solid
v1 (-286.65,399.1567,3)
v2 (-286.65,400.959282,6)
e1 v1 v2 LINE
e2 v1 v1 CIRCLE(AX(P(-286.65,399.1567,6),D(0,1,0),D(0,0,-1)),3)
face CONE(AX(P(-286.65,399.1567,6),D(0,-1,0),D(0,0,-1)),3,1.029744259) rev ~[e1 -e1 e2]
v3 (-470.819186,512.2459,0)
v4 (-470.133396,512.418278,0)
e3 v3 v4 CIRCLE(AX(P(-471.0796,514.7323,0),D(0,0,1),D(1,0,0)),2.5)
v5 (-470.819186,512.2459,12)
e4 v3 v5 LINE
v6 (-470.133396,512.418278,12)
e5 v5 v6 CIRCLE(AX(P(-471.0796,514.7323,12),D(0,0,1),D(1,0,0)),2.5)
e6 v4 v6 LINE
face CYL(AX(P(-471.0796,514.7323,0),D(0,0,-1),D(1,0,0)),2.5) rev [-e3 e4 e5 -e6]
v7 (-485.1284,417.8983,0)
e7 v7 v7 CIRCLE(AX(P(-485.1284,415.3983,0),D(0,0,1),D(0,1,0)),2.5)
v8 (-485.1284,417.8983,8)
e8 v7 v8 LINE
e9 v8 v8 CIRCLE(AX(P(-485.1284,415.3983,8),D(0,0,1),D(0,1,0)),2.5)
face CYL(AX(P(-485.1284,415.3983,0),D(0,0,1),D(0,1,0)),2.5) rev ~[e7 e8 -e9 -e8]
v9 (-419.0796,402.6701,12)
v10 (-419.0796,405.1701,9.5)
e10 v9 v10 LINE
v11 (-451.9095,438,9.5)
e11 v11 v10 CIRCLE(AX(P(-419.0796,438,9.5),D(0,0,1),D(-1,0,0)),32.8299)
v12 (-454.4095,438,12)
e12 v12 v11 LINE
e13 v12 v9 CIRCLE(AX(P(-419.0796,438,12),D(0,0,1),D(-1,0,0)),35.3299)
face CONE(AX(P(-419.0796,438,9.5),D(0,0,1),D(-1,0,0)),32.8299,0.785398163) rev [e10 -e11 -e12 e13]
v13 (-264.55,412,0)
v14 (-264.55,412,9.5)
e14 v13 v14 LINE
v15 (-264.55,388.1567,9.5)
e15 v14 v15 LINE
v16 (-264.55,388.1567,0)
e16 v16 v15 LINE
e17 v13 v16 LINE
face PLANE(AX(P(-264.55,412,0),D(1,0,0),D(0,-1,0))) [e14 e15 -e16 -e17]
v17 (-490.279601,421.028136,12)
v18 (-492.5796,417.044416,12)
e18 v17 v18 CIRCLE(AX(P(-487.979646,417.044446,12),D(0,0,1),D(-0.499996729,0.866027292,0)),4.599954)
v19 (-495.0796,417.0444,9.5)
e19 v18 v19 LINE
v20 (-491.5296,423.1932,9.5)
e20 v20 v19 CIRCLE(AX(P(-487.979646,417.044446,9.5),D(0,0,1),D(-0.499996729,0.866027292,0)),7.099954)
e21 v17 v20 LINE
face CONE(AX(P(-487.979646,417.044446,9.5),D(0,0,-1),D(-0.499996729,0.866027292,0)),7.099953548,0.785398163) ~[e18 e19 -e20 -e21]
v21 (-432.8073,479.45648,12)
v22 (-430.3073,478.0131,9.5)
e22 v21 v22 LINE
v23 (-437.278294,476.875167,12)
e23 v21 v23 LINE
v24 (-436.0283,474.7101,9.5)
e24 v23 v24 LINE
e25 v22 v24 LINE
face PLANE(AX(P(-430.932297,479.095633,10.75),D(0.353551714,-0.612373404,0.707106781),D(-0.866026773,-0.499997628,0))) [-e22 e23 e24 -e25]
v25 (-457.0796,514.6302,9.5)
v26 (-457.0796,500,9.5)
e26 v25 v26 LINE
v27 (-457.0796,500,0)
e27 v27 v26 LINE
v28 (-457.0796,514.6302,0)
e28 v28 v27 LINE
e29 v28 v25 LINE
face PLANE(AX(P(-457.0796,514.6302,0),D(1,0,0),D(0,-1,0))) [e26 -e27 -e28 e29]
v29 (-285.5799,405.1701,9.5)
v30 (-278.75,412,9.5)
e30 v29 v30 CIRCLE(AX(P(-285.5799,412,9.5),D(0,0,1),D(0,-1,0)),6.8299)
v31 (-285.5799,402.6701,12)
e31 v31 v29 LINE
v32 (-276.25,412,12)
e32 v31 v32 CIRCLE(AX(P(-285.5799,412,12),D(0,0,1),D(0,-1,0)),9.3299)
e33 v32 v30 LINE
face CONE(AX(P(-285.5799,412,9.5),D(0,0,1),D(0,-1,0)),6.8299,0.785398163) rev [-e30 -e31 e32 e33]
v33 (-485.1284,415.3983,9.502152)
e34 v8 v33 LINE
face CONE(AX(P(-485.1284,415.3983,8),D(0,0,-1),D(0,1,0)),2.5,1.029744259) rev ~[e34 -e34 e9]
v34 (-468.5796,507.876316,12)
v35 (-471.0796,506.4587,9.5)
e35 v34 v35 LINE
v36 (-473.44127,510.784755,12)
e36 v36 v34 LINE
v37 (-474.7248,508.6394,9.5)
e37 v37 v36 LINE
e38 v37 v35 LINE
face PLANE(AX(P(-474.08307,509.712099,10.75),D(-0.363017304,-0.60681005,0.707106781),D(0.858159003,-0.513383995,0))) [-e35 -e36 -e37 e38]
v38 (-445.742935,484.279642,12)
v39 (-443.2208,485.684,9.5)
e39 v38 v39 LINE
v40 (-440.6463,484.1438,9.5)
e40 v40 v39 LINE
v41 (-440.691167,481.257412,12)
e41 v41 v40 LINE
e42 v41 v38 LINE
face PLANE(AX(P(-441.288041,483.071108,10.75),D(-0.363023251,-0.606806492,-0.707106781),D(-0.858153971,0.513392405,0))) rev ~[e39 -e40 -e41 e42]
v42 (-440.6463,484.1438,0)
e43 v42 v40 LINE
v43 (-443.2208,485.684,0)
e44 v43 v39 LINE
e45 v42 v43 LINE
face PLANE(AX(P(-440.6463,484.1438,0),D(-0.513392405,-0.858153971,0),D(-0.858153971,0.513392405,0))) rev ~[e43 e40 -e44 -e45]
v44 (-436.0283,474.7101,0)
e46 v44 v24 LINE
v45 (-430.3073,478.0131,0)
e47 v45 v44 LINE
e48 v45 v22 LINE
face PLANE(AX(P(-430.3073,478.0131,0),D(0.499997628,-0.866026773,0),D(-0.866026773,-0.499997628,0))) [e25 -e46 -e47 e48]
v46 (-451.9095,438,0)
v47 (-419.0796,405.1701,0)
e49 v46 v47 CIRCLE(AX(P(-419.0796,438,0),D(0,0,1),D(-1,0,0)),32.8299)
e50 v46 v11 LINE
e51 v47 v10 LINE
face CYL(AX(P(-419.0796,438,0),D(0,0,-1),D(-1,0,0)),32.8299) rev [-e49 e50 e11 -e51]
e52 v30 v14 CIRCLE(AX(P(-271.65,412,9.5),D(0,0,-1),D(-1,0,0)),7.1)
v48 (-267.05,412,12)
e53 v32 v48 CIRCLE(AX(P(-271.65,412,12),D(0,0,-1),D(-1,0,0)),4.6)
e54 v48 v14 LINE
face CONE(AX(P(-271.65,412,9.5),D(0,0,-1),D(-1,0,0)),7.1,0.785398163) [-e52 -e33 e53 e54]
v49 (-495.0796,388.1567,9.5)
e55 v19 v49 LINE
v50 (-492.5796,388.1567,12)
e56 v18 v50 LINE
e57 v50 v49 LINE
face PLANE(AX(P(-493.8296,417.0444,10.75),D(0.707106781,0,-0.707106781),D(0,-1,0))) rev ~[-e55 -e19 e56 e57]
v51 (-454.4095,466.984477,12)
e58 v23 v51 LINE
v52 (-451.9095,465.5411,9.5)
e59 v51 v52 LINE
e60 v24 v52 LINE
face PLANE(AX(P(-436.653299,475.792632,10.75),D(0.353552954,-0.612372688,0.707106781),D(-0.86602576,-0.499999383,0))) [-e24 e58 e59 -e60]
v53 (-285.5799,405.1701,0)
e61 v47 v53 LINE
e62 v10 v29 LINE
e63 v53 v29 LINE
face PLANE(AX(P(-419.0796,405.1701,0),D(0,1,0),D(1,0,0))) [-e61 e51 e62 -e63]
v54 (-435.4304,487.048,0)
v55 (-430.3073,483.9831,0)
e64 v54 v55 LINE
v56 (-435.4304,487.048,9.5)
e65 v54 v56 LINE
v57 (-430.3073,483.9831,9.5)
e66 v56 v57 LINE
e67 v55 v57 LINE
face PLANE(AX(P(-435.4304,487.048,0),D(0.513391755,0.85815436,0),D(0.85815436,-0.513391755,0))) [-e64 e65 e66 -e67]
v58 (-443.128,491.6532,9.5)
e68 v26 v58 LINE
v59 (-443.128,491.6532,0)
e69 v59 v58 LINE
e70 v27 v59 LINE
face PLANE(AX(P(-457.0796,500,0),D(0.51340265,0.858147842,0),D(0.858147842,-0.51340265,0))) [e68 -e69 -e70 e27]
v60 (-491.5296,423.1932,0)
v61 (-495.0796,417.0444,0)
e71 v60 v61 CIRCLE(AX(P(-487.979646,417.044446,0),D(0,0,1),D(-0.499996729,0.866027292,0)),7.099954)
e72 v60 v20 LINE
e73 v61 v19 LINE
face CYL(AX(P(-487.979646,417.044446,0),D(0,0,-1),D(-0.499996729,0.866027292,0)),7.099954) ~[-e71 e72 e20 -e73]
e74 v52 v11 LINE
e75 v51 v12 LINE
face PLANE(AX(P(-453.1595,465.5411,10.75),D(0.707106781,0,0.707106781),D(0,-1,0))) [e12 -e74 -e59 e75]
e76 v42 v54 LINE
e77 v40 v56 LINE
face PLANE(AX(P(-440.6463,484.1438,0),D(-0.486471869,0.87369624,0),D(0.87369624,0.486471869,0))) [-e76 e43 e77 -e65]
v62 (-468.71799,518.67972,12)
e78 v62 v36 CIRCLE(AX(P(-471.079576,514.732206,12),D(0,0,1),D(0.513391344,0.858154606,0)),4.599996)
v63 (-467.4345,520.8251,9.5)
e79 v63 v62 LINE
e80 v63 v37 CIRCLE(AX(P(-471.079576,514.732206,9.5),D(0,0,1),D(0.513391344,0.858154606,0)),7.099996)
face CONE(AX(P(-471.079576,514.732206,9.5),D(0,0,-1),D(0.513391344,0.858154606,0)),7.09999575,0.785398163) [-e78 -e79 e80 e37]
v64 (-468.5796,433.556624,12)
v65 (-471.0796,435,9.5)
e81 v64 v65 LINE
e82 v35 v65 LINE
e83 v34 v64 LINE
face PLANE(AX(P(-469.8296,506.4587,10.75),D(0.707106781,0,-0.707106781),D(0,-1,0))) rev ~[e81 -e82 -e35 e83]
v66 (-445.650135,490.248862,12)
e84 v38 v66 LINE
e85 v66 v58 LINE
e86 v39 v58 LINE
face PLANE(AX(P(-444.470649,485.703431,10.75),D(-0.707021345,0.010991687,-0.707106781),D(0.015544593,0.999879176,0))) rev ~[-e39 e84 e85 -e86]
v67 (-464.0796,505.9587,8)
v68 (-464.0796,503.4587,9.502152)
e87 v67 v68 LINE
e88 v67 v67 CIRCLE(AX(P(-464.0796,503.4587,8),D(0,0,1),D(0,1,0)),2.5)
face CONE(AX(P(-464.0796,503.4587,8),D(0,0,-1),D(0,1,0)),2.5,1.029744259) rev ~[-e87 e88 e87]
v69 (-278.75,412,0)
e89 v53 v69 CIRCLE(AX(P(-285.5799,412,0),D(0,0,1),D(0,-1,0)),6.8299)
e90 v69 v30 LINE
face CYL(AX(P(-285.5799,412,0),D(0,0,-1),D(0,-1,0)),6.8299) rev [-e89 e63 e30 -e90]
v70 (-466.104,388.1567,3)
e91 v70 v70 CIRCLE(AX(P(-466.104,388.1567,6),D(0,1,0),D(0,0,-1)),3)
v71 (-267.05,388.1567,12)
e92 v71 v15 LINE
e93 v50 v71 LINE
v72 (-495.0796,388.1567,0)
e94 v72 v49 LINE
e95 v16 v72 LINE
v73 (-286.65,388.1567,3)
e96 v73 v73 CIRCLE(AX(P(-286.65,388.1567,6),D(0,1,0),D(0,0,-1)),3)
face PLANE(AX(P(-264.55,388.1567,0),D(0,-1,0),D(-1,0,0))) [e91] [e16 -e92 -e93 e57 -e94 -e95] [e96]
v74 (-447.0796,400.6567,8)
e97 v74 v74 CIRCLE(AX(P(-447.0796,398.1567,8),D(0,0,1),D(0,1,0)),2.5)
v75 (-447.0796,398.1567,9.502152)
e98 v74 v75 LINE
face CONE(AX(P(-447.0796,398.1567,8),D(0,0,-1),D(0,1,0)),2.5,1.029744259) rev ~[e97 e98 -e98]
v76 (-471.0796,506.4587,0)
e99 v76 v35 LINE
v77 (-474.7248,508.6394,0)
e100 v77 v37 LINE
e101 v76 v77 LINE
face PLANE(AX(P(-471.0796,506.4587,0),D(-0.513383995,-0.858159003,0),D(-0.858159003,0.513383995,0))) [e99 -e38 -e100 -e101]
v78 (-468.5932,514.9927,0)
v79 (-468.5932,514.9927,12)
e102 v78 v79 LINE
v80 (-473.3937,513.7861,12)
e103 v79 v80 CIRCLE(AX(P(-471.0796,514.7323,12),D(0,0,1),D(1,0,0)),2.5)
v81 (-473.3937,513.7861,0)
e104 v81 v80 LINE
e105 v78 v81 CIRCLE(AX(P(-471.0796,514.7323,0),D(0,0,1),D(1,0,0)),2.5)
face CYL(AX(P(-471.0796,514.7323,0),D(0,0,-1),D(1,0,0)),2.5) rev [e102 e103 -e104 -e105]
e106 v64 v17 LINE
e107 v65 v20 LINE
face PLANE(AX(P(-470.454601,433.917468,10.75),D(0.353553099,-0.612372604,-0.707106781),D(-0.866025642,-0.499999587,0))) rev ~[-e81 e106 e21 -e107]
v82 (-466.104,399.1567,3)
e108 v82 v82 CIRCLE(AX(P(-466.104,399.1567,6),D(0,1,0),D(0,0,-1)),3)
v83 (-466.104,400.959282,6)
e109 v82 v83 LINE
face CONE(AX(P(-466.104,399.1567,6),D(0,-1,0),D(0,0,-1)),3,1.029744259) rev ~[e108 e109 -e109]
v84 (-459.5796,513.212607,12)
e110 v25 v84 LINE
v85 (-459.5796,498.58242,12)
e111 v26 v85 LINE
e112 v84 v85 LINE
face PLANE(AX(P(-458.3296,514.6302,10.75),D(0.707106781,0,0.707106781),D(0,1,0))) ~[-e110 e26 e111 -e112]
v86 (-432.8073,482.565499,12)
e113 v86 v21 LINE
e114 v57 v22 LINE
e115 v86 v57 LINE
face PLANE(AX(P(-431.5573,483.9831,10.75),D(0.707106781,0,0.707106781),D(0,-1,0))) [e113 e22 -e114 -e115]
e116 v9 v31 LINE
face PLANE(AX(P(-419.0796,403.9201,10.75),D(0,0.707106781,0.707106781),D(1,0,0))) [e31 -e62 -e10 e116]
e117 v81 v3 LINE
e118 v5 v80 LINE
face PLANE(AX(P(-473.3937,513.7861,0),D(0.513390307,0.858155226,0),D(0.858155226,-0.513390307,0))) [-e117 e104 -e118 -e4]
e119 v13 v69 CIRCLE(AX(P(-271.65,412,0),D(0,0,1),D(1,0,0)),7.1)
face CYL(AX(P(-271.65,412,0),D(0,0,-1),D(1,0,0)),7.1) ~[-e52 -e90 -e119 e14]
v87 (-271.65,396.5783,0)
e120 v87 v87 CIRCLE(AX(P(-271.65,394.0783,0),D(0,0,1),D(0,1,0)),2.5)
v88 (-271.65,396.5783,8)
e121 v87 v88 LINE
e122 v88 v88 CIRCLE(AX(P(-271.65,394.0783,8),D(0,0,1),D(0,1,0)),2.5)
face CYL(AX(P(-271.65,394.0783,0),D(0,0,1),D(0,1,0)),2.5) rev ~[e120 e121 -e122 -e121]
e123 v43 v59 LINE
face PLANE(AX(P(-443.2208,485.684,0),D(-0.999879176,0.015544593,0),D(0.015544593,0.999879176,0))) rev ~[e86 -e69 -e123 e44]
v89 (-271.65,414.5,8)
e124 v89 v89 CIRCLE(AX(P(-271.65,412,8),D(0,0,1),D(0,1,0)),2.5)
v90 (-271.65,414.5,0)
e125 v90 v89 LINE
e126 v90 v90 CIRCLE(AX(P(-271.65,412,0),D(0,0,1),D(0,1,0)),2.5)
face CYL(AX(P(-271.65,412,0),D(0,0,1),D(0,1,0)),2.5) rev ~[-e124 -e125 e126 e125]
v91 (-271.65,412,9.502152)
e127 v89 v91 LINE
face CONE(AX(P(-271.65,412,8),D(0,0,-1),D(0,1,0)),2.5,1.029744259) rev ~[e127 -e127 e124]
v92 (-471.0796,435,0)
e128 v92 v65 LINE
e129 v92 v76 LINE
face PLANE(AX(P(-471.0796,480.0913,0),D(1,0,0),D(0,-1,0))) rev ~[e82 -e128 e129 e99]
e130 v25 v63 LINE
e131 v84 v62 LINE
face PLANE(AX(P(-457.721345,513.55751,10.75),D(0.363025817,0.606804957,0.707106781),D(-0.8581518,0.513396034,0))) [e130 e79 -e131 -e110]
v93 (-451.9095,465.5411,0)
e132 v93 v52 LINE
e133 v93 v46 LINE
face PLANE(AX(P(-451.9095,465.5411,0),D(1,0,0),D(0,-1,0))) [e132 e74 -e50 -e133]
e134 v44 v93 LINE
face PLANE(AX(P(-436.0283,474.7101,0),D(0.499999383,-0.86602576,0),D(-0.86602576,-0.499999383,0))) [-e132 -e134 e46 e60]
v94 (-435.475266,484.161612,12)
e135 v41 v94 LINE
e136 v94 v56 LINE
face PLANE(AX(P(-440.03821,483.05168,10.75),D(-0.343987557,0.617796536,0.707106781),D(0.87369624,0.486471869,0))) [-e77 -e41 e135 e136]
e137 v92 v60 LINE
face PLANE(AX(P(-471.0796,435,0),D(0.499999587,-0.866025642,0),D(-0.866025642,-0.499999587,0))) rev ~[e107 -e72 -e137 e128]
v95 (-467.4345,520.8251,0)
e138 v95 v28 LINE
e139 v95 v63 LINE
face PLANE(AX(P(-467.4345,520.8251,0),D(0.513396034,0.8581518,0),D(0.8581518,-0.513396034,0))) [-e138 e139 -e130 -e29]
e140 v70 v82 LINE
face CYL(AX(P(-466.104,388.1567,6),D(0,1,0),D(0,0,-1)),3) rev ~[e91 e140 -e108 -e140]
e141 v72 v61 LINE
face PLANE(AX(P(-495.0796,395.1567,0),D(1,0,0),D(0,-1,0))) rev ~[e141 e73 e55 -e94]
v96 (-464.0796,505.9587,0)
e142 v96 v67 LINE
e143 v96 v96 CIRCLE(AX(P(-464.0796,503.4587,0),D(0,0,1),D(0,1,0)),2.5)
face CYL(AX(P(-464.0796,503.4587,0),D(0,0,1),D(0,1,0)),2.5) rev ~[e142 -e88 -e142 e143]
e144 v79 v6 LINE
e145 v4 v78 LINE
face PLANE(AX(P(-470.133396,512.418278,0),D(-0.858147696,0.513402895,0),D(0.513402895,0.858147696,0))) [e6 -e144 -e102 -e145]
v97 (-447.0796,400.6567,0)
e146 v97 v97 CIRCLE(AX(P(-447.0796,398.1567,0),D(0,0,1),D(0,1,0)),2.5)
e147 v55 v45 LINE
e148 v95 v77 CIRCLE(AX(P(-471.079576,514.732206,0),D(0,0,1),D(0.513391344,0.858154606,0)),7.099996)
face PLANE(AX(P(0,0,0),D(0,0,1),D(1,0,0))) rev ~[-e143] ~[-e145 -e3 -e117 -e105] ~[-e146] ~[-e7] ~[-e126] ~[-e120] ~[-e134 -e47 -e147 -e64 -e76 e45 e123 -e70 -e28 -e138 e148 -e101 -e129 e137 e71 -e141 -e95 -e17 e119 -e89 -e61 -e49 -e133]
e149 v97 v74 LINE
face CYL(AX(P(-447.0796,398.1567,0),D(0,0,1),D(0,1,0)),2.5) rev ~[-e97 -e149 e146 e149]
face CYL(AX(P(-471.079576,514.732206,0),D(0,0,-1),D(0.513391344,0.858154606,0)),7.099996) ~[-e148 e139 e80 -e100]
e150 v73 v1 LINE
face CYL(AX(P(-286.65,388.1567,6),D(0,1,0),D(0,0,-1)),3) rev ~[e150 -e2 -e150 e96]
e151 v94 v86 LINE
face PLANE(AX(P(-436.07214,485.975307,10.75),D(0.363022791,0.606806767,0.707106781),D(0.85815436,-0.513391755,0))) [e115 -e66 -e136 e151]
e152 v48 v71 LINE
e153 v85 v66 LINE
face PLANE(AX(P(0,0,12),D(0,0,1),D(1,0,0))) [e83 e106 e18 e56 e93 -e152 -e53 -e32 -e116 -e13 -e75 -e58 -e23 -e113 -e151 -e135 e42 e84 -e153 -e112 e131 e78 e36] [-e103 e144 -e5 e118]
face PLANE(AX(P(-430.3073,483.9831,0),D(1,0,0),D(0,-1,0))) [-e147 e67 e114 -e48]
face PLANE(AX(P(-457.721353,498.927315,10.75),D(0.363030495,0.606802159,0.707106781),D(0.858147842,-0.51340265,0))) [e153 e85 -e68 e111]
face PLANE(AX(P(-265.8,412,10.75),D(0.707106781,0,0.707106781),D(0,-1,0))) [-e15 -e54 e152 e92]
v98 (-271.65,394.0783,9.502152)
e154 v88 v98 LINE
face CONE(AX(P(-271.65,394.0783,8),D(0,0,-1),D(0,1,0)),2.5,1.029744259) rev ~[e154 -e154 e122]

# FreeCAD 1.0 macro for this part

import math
import FreeCAD as App
import Part
import Sketcher

V = App.Vector
Q = App.Units.Quantity


def edges_at(feature, points):
    """Names of the edges that pass closest to the given points."""
    edges = feature.Shape.Edges
    near = lambda p: min(range(len(edges)), key=lambda i: edges[i].distToShape(Part.Vertex(*p))[0])
    return sorted({f"Edge{near(p) + 1}" for p in points})

doc = App.newDocument("Part")
params = doc.addObject("Spreadsheet::Sheet", "Params")
for row, (alias, value) in enumerate([
    ("sketch1_radius", "7.1 mm"),
    ("sketch1_radius2", "2.5 mm"),
    ("sketch1_length", "3 mm"),
    ("sketch1_radius3", "6.83 mm"),
    ("sketch1_radius4", "32.83 mm"),
    ("pad1_length", "12 mm"),
    ("chamfer_size", "2.5 mm"),
    ("sketch2_diameter", "5 mm"),
    ("hole_diameter", "5 mm"),
    ("hole_depth", "8 mm"),
    ("sketch3_diameter", "6 mm"),
    ("hole2_diameter", "6 mm"),
    ("hole2_depth", "11 mm"),
], start=1):
    params.set(f"A{row}", alias)
    params.set(f"B{row}", "=" + value)
    params.setAlias(f"B{row}", alias)

body = doc.addObject("PartDesign::Body", "Body")

# Sketch on XY plane
sketch1 = doc.addObject("Sketcher::SketchObject", "Sketch")
body.addObject(sketch1)
sketch1.AttachmentSupport = (doc.XY_Plane, [""])
sketch1.MapMode = "FlatFace"
sketch1.addGeometry(Part.LineSegment(V(-457.1, 514.6, 0), V(-467.4, 520.8, 0)), False)
sketch1.addGeometry(Part.ArcOfCircle(Part.Circle(V(-471.1, 514.7, 0), V(0, 0, 1), 7.1), math.radians(59), math.radians(239)), False)
sketch1.addGeometry(Part.LineSegment(V(-474.7, 508.6, 0), V(-471.1, 506.5, 0)), False)
sketch1.addGeometry(Part.LineSegment(V(-471.1, 506.5, 0), V(-471.1, 435, 0)), False)
sketch1.addGeometry(Part.LineSegment(V(-471.1, 435, 0), V(-491.5, 423.2, 0)), False)
sketch1.addGeometry(Part.ArcOfCircle(Part.Circle(V(-488, 417, 0), V(0, 0, 1), 7.1), math.radians(120), math.radians(180)), False)
sketch1.addGeometry(Part.LineSegment(V(-495.1, 417, 0), V(-495.1, 388.2, 0)), False)
sketch1.addGeometry(Part.LineSegment(V(-495.1, 388.2, 0), V(-264.6, 388.2, 0)), False)
sketch1.addGeometry(Part.LineSegment(V(-264.6, 388.2, 0), V(-264.6, 412, 0)), False)
sketch1.addGeometry(Part.ArcOfCircle(Part.Circle(V(-271.6, 412, 0), V(0, 0, 1), 7.1), math.radians(0), math.radians(180)), False)
sketch1.addGeometry(Part.ArcOfCircle(Part.Circle(V(-285.6, 412, 0), V(0, 0, 1), 6.8), math.radians(-90), math.radians(0)), False)
sketch1.addGeometry(Part.LineSegment(V(-285.6, 405.2, 0), V(-419.1, 405.2, 0)), False)
sketch1.addGeometry(Part.ArcOfCircle(Part.Circle(V(-419.1, 438, 0), V(0, 0, 1), 32.8), math.radians(180), math.radians(270)), False)
sketch1.addGeometry(Part.LineSegment(V(-451.9, 438, 0), V(-451.9, 465.5, 0)), False)
sketch1.addGeometry(Part.LineSegment(V(-451.9, 465.5, 0), V(-436, 474.7, 0)), False)
sketch1.addGeometry(Part.LineSegment(V(-436, 474.7, 0), V(-430.3, 478, 0)), False)
sketch1.addGeometry(Part.LineSegment(V(-430.3, 478, 0), V(-430.3, 484, 0)), False)
sketch1.addGeometry(Part.LineSegment(V(-430.3, 484, 0), V(-435.4, 487, 0)), False)
sketch1.addGeometry(Part.LineSegment(V(-435.4, 487, 0), V(-440.6, 484.1, 0)), False)
sketch1.addGeometry(Part.LineSegment(V(-440.6, 484.1, 0), V(-443.2, 485.7, 0)), False)
sketch1.addGeometry(Part.LineSegment(V(-443.2, 485.7, 0), V(-443.1, 491.7, 0)), False)
sketch1.addGeometry(Part.LineSegment(V(-443.1, 491.7, 0), V(-457.1, 500, 0)), False)
sketch1.addGeometry(Part.LineSegment(V(-457.1, 500, 0), V(-457.1, 514.6, 0)), False)
sketch1.addGeometry(Part.ArcOfCircle(Part.Circle(V(-471.1, 514.7, 0), V(0, 0, 1), 2.5), math.radians(6), math.radians(202)), False)
sketch1.addGeometry(Part.LineSegment(V(-468.6, 515, 0), V(-470.1, 512.4, 0)), False)
sketch1.addGeometry(Part.ArcOfCircle(Part.Circle(V(-471.1, 514.7, 0), V(0, 0, 1), 2.5), math.radians(-84.02), math.radians(-67.76)), False)
sketch1.addGeometry(Part.LineSegment(V(-470.8, 512.2, 0), V(-473.4, 513.8, 0)), False)
sketch1.addConstraint(Sketcher.Constraint("Tangent", 0, 2, 1, 1))
sketch1.addConstraint(Sketcher.Constraint("Tangent", 1, 2, 2, 1))
sketch1.addConstraint(Sketcher.Constraint("Coincident", 2, 2, 3, 1))
sketch1.addConstraint(Sketcher.Constraint("Coincident", 3, 2, 4, 1))
sketch1.addConstraint(Sketcher.Constraint("Tangent", 4, 2, 5, 1))
sketch1.addConstraint(Sketcher.Constraint("Tangent", 5, 2, 6, 1))
sketch1.addConstraint(Sketcher.Constraint("Coincident", 6, 2, 7, 1))
sketch1.addConstraint(Sketcher.Constraint("Coincident", 7, 2, 8, 1))
sketch1.addConstraint(Sketcher.Constraint("Tangent", 8, 2, 9, 1))
sketch1.addConstraint(Sketcher.Constraint("Tangent", 9, 2, 10, 2))
sketch1.addConstraint(Sketcher.Constraint("Tangent", 10, 1, 11, 1))
sketch1.addConstraint(Sketcher.Constraint("Tangent", 11, 2, 12, 2))
sketch1.addConstraint(Sketcher.Constraint("Tangent", 12, 1, 13, 1))
sketch1.addConstraint(Sketcher.Constraint("Coincident", 13, 2, 14, 1))
sketch1.addConstraint(Sketcher.Constraint("Coincident", 14, 2, 15, 1))
sketch1.addConstraint(Sketcher.Constraint("Coincident", 15, 2, 16, 1))
sketch1.addConstraint(Sketcher.Constraint("Coincident", 16, 2, 17, 1))
sketch1.addConstraint(Sketcher.Constraint("Coincident", 17, 2, 18, 1))
sketch1.addConstraint(Sketcher.Constraint("Coincident", 18, 2, 19, 1))
sketch1.addConstraint(Sketcher.Constraint("Coincident", 19, 2, 20, 1))
sketch1.addConstraint(Sketcher.Constraint("Coincident", 20, 2, 21, 1))
sketch1.addConstraint(Sketcher.Constraint("Coincident", 21, 2, 22, 1))
sketch1.addConstraint(Sketcher.Constraint("Coincident", 22, 2, 0, 1))
sketch1.addConstraint(Sketcher.Constraint("Coincident", 23, 1, 24, 1))
sketch1.addConstraint(Sketcher.Constraint("Coincident", 24, 2, 25, 2))
sketch1.addConstraint(Sketcher.Constraint("Coincident", 25, 1, 26, 1))
sketch1.addConstraint(Sketcher.Constraint("Coincident", 26, 2, 23, 2))
sketch1.addConstraint(Sketcher.Constraint("Vertical", 3))
sketch1.addConstraint(Sketcher.Constraint("Vertical", 6))
sketch1.addConstraint(Sketcher.Constraint("Horizontal", 7))
sketch1.addConstraint(Sketcher.Constraint("Vertical", 8))
sketch1.addConstraint(Sketcher.Constraint("Horizontal", 11))
sketch1.addConstraint(Sketcher.Constraint("Vertical", 13))
sketch1.addConstraint(Sketcher.Constraint("Vertical", 16))
sketch1.addConstraint(Sketcher.Constraint("Vertical", 22))
sketch1.addConstraint(Sketcher.Constraint("Coincident", 23, 3, 1, 3))
sketch1.addConstraint(Sketcher.Constraint("Coincident", 25, 3, 1, 3))
sketch1.addConstraint(Sketcher.Constraint("Equal", 1, 5))
sketch1.addConstraint(Sketcher.Constraint("Equal", 5, 9))
sketch1.addConstraint(Sketcher.Constraint("Equal", 23, 25))
sketch1.addConstraint(Sketcher.Constraint("Parallel", 0, 2))
sketch1.addConstraint(Sketcher.Constraint("Parallel", 4, 14))
sketch1.addConstraint(Sketcher.Constraint("Parallel", 14, 15))
sketch1.addConstraint(Sketcher.Constraint("Parallel", 2, 17))
sketch1.addConstraint(Sketcher.Constraint("Parallel", 17, 19))
sketch1.addConstraint(Sketcher.Constraint("Parallel", 19, 21))
sketch1.addConstraint(Sketcher.Constraint("Perpendicular", 21, 24))
sketch1.addConstraint(Sketcher.Constraint("Perpendicular", 24, 26))
sketch1.addConstraint(Sketcher.Constraint("Horizontal", 9, 3, 10, 3))
sketch1.addConstraint(Sketcher.Constraint("Vertical", 25, 3, 2, 2))
sketch1.addConstraint(Sketcher.Constraint("Equal", 17, 18))
sketch1.addConstraint(Sketcher.Constraint("Equal", 18, 20))
sketch1.addConstraint(Sketcher.Constraint("Equal", 19, 24))
sketch1.addConstraint(Sketcher.Constraint("Equal", 24, 26))
sketch1.addConstraint(Sketcher.Constraint("Radius", 1, 7.1))
sketch1.addConstraint(Sketcher.Constraint("Radius", 23, 2.5))
sketch1.addConstraint(Sketcher.Constraint("Angle", 14, Q("30 deg")))
sketch1.addConstraint(Sketcher.Constraint("Distance", 19, 3.0))
sketch1.addConstraint(Sketcher.Constraint("DistanceY", 3, 2, 12, 3, 3.0))
sketch1.addConstraint(Sketcher.Constraint("DistanceX", 5, 2, 3, 2, 24.0))
sketch1.addConstraint(Sketcher.Constraint("DistanceX", 2, 2, 21, 2, 14.0))
sketch1.addConstraint(Sketcher.Constraint("Angle", 24, Q("-120.8908 deg")))
sketch1.addConstraint(Sketcher.Constraint("Radius", 10, 6.83))
sketch1.addConstraint(Sketcher.Constraint("Radius", 12, 32.83))
sketch1.addConstraint(Sketcher.Constraint("DistanceY", -1, 1, 9, 3, 412.0))
sketch1.addConstraint(Sketcher.Constraint("DistanceY", -1, 1, 21, 2, 500.0))
sketch1.addConstraint(Sketcher.Constraint("DistanceX", 1, 3, 12, 3, 52.0))
sketch1.addConstraint(Sketcher.Constraint("DistanceY", 16, 1, 16, 2, 5.97))
sketch1.addConstraint(Sketcher.Constraint("Angle", 18, Q("-150.891 deg")))
sketch1.addConstraint(Sketcher.Constraint("Angle", 20, Q("89.1093 deg")))
sketch1.addConstraint(Sketcher.Constraint("DistanceX", 20, 2, 14, 2, 7.0997))
sketch1.addConstraint(Sketcher.Constraint("Distance", 17, 5.97))
sketch1.addConstraint(Sketcher.Constraint("DistanceY", 13, 1, 13, 2, 27.541))
sketch1.addConstraint(Sketcher.Constraint("DistanceX", 9, 3, -1, 1, 271.65))
sketch1.addConstraint(Sketcher.Constraint("DistanceX", 7, 1, 7, 2, 230.5296))
sketch1.addConstraint(Sketcher.Constraint("DistanceY", 3, 2, 3, 1, 71.4587))
sketch1.addConstraint(Sketcher.Constraint("DistanceY", 6, 2, 6, 1, 28.8877))
sketch1.setExpression("Constraints[54]", "Params.sketch1_radius")
sketch1.setExpression("Constraints[55]", "Params.sketch1_radius2")
sketch1.setExpression("Constraints[57]", "Params.sketch1_length")
sketch1.setExpression("Constraints[62]", "Params.sketch1_radius3")
sketch1.setExpression("Constraints[63]", "Params.sketch1_radius4")
pad1 = doc.addObject("PartDesign::Pad", "Pad")
body.addObject(pad1)
pad1.Profile = sketch1
pad1.setExpression("Length", "Params.pad1_length")
doc.recompute()

chamfer = doc.addObject("PartDesign::Chamfer", "Chamfer")
body.addObject(chamfer)
chamfer.Base = (pad1, edges_at(pad1, [
    (-481.305, 429.097, 12),
    (-494.128, 420.594, 12),
    (-495.08, 402.601, 12),
    (-471.08, 470.729, 12),
    (-477.173, 518.377, 12),
    (-472.902, 507.549, 12),
    (-462.257, 517.728, 12),
    (-457.08, 507.315, 12),
    (-450.104, 495.827, 12),
    (-443.174, 488.669, 12),
    (-441.933, 484.914, 12),
    (-438.038, 485.596, 12),
    (-432.869, 485.515, 12),
    (-430.307, 480.998, 12),
    (-441.108, 471.777, 12),
    (-451.909, 451.771, 12),
    (-442.294, 414.786, 12),
    (-352.33, 405.17, 12),
    (-280.75, 407.171, 12),
    (-271.65, 419.1, 12),
    (-264.55, 400.078, 12),
]))
chamfer.setExpression("Size", "Params.chamfer_size")

# Sketch on XY plane
sketch2 = doc.addObject("Sketcher::SketchObject", "Sketch001")
body.addObject(sketch2)
sketch2.AttachmentSupport = (doc.XY_Plane, [""])
sketch2.MapMode = "FlatFace"
sketch2.addGeometry(Part.Circle(V(-464.1, 503.5, 0), V(0, 0, 1), 2.5), False)
sketch2.addGeometry(Part.Circle(V(-485.1, 415.4, 0), V(0, 0, 1), 2.5), False)
sketch2.addGeometry(Part.Circle(V(-447.1, 398.2, 0), V(0, 0, 1), 2.5), False)
sketch2.addGeometry(Part.Circle(V(-271.6, 394.1, 0), V(0, 0, 1), 2.5), False)
sketch2.addGeometry(Part.Circle(V(-271.6, 412, 0), V(0, 0, 1), 2.5), False)
sketch2.addConstraint(Sketcher.Constraint("Equal", 0, 1))
sketch2.addConstraint(Sketcher.Constraint("Equal", 1, 2))
sketch2.addConstraint(Sketcher.Constraint("Equal", 2, 3))
sketch2.addConstraint(Sketcher.Constraint("Equal", 3, 4))
sketch2.addConstraint(Sketcher.Constraint("Vertical", 3, 3, 4, 3))
sketch2.addConstraint(Sketcher.Constraint("Diameter", 0, 5.0))
sketch2.addConstraint(Sketcher.Constraint("DistanceY", -1, 1, 4, 3, 412.0))
sketch2.addConstraint(Sketcher.Constraint("DistanceX", 0, 3, 2, 3, 17.0))
sketch2.addConstraint(Sketcher.Constraint("DistanceX", 3, 3, -1, 1, 271.65))
sketch2.addConstraint(Sketcher.Constraint("DistanceY", 3, 3, 1, 3, 21.32))
sketch2.addConstraint(Sketcher.Constraint("DistanceY", 2, 3, 0, 3, 105.302))
sketch2.addConstraint(Sketcher.Constraint("DistanceX", 0, 3, -1, 1, 464.0796))
sketch2.addConstraint(Sketcher.Constraint("DistanceY", -1, 1, 0, 3, 503.4587))
sketch2.addConstraint(Sketcher.Constraint("DistanceX", 1, 3, -1, 1, 485.1284))
sketch2.addConstraint(Sketcher.Constraint("DistanceY", -1, 1, 1, 3, 415.3983))
sketch2.setExpression("Constraints[5]", "Params.sketch2_diameter")
doc.recompute()
hole = doc.addObject("PartDesign::Hole", "Hole")
body.addObject(hole)
hole.Profile = sketch2
hole.ThreadType = "None"
hole.setExpression("Diameter", "Params.hole_diameter")
hole.DepthType = "Dimension"
hole.setExpression("Depth", "Params.hole_depth")
hole.DrillPoint = "Angled"
hole.DrillPointAngle = 118
hole.Reversed = True

# Sketch on XZ plane
sketch3 = doc.addObject("Sketcher::SketchObject", "Sketch002")
body.addObject(sketch3)
sketch3.AttachmentSupport = (doc.XZ_Plane, [""])
sketch3.MapMode = "FlatFace"
sketch3.AttachmentOffset = App.Placement(V(0, 0, -388.1567), App.Rotation())
sketch3.addGeometry(Part.Circle(V(-466.1, 6, 0), V(0, 0, 1), 3), False)
sketch3.addGeometry(Part.Circle(V(-286.6, 6, 0), V(0, 0, 1), 3), False)
sketch3.addConstraint(Sketcher.Constraint("Equal", 0, 1))
sketch3.addConstraint(Sketcher.Constraint("Horizontal", 0, 3, 1, 3))
sketch3.addConstraint(Sketcher.Constraint("Diameter", 0, 6.0))
sketch3.addConstraint(Sketcher.Constraint("DistanceY", -1, 1, 0, 3, 6.0))
sketch3.addConstraint(Sketcher.Constraint("DistanceX", 1, 3, -1, 1, 286.65))
sketch3.addConstraint(Sketcher.Constraint("DistanceX", 0, 3, -1, 1, 466.104))
sketch3.setExpression("Constraints[2]", "Params.sketch3_diameter")
doc.recompute()
hole2 = doc.addObject("PartDesign::Hole", "Hole001")
body.addObject(hole2)
hole2.Profile = sketch3
hole2.ThreadType = "None"
hole2.setExpression("Diameter", "Params.hole2_diameter")
hole2.DepthType = "Dimension"
hole2.setExpression("Depth", "Params.hole2_depth")
hole2.DrillPoint = "Angled"
hole2.DrillPointAngle = 118

doc.recompute()
